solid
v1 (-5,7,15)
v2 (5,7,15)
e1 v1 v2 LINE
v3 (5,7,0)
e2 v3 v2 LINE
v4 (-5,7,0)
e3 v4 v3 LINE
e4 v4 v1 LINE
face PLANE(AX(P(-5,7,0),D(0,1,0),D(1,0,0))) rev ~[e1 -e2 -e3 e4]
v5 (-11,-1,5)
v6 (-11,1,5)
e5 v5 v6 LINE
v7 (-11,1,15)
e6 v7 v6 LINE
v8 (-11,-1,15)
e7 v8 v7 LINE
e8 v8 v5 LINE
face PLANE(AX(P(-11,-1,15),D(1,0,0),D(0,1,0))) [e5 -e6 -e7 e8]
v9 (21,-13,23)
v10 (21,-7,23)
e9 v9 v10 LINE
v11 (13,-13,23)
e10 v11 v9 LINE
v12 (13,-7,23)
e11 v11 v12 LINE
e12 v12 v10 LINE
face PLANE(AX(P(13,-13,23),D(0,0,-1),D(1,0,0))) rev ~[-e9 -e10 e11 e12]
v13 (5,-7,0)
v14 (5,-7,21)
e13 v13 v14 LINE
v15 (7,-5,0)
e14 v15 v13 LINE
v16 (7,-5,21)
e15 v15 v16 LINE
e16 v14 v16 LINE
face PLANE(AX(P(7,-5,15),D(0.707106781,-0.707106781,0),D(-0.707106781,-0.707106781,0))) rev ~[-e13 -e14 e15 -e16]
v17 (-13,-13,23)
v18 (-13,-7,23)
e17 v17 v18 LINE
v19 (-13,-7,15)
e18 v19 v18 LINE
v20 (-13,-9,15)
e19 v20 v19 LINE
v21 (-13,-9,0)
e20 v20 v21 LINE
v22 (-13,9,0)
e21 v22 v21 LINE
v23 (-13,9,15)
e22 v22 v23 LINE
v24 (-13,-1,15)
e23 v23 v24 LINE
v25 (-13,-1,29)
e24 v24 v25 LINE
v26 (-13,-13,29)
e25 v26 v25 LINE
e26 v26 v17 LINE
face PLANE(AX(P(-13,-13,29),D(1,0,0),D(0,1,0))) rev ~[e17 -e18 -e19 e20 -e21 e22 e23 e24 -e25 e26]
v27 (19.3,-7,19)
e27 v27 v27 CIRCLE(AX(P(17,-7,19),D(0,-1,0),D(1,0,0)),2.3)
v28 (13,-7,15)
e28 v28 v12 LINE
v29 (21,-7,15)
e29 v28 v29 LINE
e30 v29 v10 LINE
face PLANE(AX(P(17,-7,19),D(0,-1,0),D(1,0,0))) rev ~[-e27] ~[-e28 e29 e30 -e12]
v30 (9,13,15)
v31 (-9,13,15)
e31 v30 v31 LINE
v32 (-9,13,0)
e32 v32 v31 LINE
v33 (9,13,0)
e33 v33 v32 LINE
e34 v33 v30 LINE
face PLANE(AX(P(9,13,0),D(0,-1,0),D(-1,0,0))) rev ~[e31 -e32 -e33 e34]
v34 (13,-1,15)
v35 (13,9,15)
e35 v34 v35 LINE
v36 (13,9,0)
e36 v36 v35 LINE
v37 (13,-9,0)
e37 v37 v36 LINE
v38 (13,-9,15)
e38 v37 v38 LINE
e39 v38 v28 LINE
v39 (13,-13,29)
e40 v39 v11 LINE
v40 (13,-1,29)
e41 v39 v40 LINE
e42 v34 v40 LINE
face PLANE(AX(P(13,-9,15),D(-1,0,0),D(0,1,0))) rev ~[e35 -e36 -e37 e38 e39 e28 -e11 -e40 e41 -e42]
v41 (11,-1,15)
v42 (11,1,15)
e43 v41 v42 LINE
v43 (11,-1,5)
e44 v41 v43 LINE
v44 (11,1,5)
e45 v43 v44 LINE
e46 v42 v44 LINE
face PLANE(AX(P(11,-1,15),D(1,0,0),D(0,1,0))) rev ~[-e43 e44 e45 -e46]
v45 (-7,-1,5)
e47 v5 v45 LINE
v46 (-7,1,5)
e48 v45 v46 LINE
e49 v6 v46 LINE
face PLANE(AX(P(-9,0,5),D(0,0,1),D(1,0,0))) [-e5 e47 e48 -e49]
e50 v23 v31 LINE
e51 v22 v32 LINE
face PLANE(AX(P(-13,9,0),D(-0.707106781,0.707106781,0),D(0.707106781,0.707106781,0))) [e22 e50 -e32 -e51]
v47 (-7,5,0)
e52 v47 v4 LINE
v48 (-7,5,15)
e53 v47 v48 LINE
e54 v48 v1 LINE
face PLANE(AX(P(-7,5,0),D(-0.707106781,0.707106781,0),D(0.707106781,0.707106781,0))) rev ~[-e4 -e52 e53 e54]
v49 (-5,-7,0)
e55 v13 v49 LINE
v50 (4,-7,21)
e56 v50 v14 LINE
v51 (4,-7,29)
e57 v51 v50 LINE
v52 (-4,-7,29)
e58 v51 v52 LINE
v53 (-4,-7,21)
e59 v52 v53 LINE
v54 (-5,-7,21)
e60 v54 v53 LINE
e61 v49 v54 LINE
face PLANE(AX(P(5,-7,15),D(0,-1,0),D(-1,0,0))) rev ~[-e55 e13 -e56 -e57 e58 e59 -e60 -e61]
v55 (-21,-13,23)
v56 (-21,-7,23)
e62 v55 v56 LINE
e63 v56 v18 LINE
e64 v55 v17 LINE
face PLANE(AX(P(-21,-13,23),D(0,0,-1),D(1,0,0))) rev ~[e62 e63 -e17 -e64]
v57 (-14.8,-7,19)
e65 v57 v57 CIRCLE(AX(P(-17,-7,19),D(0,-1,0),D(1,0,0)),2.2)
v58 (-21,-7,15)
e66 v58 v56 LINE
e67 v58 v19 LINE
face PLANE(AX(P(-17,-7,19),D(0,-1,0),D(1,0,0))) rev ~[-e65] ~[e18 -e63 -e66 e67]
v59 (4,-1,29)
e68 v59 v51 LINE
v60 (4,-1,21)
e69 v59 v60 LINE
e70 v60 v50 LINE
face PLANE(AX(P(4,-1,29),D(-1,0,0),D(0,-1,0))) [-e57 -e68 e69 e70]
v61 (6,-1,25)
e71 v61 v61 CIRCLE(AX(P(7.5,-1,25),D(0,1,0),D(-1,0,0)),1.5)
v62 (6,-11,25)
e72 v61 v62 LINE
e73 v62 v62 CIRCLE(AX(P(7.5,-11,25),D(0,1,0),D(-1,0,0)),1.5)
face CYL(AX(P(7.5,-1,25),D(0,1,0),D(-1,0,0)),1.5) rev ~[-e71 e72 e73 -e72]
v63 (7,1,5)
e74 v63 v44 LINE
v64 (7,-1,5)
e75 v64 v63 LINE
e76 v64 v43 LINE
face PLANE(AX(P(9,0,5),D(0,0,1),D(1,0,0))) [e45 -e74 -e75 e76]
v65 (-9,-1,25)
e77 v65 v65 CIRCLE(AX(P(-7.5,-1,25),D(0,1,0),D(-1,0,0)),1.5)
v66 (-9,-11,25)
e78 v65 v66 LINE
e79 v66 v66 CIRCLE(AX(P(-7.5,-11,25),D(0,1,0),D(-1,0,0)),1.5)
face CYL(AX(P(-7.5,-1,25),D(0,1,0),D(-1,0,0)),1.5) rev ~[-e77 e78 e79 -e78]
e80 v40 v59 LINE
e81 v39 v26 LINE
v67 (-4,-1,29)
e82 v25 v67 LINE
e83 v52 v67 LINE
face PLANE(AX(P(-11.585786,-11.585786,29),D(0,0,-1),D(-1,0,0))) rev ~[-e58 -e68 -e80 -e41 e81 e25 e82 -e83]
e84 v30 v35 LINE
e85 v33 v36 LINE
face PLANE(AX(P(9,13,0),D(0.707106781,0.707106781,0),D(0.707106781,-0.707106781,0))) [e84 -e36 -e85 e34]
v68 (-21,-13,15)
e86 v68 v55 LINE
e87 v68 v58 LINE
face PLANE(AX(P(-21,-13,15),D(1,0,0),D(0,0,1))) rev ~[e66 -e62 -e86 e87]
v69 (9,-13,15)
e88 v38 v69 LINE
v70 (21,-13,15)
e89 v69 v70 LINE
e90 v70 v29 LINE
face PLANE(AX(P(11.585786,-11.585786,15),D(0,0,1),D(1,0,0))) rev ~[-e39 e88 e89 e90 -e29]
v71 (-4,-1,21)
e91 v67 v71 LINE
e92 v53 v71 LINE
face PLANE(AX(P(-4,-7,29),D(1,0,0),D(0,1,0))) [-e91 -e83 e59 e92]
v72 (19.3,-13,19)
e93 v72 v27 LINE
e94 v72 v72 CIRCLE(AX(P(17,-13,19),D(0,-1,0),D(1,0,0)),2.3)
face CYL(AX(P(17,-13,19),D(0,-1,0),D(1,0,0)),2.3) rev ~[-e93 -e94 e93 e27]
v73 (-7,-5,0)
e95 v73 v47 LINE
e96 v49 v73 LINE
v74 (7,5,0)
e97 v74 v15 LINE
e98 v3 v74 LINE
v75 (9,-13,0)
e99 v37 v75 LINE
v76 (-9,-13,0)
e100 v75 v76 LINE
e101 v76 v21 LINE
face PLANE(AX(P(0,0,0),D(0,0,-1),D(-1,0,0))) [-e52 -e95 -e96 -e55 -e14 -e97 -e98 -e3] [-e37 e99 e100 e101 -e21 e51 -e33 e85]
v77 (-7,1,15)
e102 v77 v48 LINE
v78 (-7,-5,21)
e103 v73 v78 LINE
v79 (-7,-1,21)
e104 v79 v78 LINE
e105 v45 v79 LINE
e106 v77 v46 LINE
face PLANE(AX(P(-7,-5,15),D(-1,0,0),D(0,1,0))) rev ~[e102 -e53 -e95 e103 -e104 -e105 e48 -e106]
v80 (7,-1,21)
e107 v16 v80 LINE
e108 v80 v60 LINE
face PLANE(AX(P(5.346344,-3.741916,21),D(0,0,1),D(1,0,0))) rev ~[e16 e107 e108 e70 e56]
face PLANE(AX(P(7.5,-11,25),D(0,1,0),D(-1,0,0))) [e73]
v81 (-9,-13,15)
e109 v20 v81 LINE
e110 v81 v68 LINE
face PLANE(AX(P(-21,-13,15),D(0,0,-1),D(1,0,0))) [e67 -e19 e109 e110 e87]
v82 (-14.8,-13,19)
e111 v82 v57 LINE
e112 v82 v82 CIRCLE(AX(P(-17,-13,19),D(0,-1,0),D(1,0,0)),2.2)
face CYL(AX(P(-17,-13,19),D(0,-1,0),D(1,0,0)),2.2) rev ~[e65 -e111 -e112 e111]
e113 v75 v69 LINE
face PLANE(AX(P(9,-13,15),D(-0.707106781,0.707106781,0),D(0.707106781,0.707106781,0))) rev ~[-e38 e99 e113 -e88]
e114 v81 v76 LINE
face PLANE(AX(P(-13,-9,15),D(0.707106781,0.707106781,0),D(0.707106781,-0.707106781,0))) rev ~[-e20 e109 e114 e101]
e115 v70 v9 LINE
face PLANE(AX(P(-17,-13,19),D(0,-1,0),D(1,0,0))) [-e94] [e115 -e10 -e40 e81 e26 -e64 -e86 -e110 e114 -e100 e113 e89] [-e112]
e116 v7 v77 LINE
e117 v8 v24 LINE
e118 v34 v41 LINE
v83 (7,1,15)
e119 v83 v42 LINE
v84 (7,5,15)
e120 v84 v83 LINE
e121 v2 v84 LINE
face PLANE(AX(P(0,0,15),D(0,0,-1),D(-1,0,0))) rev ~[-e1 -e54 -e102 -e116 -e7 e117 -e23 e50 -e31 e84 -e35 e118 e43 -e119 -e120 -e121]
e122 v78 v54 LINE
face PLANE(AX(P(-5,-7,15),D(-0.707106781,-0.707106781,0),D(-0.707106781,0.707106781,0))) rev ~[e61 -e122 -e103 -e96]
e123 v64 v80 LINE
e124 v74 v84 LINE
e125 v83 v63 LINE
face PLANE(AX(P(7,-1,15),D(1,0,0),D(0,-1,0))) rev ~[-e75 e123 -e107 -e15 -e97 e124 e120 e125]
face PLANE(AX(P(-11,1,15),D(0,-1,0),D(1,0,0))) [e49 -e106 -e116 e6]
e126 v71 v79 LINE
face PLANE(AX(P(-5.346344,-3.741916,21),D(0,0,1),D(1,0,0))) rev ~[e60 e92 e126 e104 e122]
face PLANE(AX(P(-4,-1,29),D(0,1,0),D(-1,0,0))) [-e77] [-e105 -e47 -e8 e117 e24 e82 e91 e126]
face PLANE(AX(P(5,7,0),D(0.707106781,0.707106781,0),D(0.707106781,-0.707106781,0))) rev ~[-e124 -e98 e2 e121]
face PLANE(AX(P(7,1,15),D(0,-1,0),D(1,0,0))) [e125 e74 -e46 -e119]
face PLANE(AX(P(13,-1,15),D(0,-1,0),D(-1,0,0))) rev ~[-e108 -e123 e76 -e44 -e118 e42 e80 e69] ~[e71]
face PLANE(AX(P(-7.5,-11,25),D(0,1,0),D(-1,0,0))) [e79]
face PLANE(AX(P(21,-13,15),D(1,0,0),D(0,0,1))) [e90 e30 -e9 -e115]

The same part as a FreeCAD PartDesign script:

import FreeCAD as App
import Part
import Sketcher

V = App.Vector


def add_polygon(sketch, points):
    """Adds a closed chain of lines whose ends are joined by coincident constraints."""
    first, n = sketch.GeometryCount, len(points)
    for a, b in zip(points, points[1:] + points[:1]):
        sketch.addGeometry(Part.LineSegment(App.Vector(*a, 0), App.Vector(*b, 0)), False)
    for i in range(n):
        sketch.addConstraint(Sketcher.Constraint("Coincident", first + i, 2, first + (i + 1) % n, 1))

doc = App.newDocument("Part")
body = doc.addObject("PartDesign::Body", "Body")

sketch1 = body.newObject("Sketcher::SketchObject", "Sketch")
sketch1.AttachmentSupport = (doc.getObject("XY_Plane"), [""])
sketch1.MapMode = "FlatFace"
add_polygon(sketch1, [(13, -9), (13, 9), (9, 13), (-9, 13), (-13, 9), (-13, -9), (-9, -13), (9, -13)])
add_polygon(sketch1, [(7, -5), (5, -7), (-5, -7), (-7, -5), (-7, 5), (-5, 7), (5, 7), (7, 5)])
sketch1.addConstraint(Sketcher.Constraint("Vertical", 0))
sketch1.addConstraint(Sketcher.Constraint("Horizontal", 2))
sketch1.addConstraint(Sketcher.Constraint("Vertical", 4))
sketch1.addConstraint(Sketcher.Constraint("Horizontal", 6))
sketch1.addConstraint(Sketcher.Constraint("Horizontal", 9))
sketch1.addConstraint(Sketcher.Constraint("Vertical", 11))
sketch1.addConstraint(Sketcher.Constraint("Horizontal", 13))
sketch1.addConstraint(Sketcher.Constraint("Vertical", 15))
sketch1.addConstraint(Sketcher.Constraint("Symmetric", 0, 2, 4, 2, -1, 1))
sketch1.addConstraint(Sketcher.Constraint("Symmetric", 1, 2, 5, 2, -1, 1))
sketch1.addConstraint(Sketcher.Constraint("Symmetric", 8, 2, 12, 2, -1, 1))
sketch1.addConstraint(Sketcher.Constraint("Symmetric", 10, 2, 14, 2, -1, 1))
sketch1.addConstraint(Sketcher.Constraint("Perpendicular", 1, 3))
sketch1.addConstraint(Sketcher.Constraint("Perpendicular", 5, 7))
sketch1.addConstraint(Sketcher.Constraint("Parallel", 7, 8))
sketch1.addConstraint(Sketcher.Constraint("Perpendicular", 8, 10))
sketch1.addConstraint(Sketcher.Constraint("Perpendicular", 10, 12))
sketch1.addConstraint(Sketcher.Constraint("Perpendicular", 12, 14))
sketch1.addConstraint(Sketcher.Constraint("Horizontal", 0, 2, 3, 2))
sketch1.addConstraint(Sketcher.Constraint("Horizontal", 4, 2, 7, 2))
sketch1.addConstraint(Sketcher.Constraint("Horizontal", 11, 2, 14, 2))
sketch1.addConstraint(Sketcher.Constraint("Vertical", 2, 2, 5, 2))
sketch1.addConstraint(Sketcher.Constraint("Equal", 6, 0))
sketch1.addConstraint(Sketcher.Constraint("Equal", 13, 11))
sketch1.addConstraint(Sketcher.Constraint("DistanceX", 2, 2, 2, 1, 18.0))
sketch1.addConstraint(Sketcher.Constraint("DistanceX", 9, 2, 9, 1, 10.0))
sketch1.addConstraint(Sketcher.Constraint("DistanceX", -1, 1, 0, 2, 13.0))
sketch1.addConstraint(Sketcher.Constraint("DistanceY", 8, 2, -1, 1, 7.0))
pad1 = body.newObject("PartDesign::Pad", "Pad")
pad1.Profile = sketch1
pad1.Length = 15

sketch2 = body.newObject("Sketcher::SketchObject", "Sketch001")
sketch2.AttachmentSupport = (doc.getObject("XY_Plane"), [""])
sketch2.MapMode = "FlatFace"
sketch2.AttachmentOffset = App.Placement(V(0, 0, 15), App.Rotation())
add_polygon(sketch2, [(-9, -13), (9, -13), (13, -9), (13, -1), (7, -1), (7, -5), (5, -7), (-5, -7), (-7, -5), (-7, -1), (-13, -1), (-13, -9)])
sketch2.addConstraint(Sketcher.Constraint("Horizontal", 0))
sketch2.addConstraint(Sketcher.Constraint("Vertical", 2))
sketch2.addConstraint(Sketcher.Constraint("Horizontal", 3))
sketch2.addConstraint(Sketcher.Constraint("Vertical", 4))
sketch2.addConstraint(Sketcher.Constraint("Horizontal", 6))
sketch2.addConstraint(Sketcher.Constraint("Vertical", 8))
sketch2.addConstraint(Sketcher.Constraint("Horizontal", 9))
sketch2.addConstraint(Sketcher.Constraint("Vertical", 10))
sketch2.addConstraint(Sketcher.Constraint("Symmetric", 4, 2, 7, 2, -2))
sketch2.addConstraint(Sketcher.Constraint("Symmetric", 2, 2, 9, 2, -2))
sketch2.addConstraint(Sketcher.Constraint("Parallel", 1, 5))
sketch2.addConstraint(Sketcher.Constraint("Perpendicular", 5, 7))
sketch2.addConstraint(Sketcher.Constraint("Parallel", 7, 11))
sketch2.addConstraint(Sketcher.Constraint("Horizontal", 1, 2, 10, 2))
sketch2.addConstraint(Sketcher.Constraint("Equal", 5, 7))
sketch2.addConstraint(Sketcher.Constraint("DistanceX", 0, 1, 0, 2, 18.0))
sketch2.addConstraint(Sketcher.Constraint("DistanceX", 3, 2, 3, 1, 6.0))
sketch2.addConstraint(Sketcher.Constraint("DistanceX", 6, 2, 6, 1, 10.0))
sketch2.addConstraint(Sketcher.Constraint("DistanceY", 2, 1, 2, 2, 8.0))
sketch2.addConstraint(Sketcher.Constraint("DistanceY", 4, 2, 4, 1, 4.0))
sketch2.addConstraint(Sketcher.Constraint("DistanceY", 0, 2, -1, 1, 13.0))
sketch2.addConstraint(Sketcher.Constraint("DistanceX", -1, 1, 1, 2, 13.0))
pad2 = body.newObject("PartDesign::Pad", "Pad001")
pad2.Profile = sketch2
pad2.Length = 14

sketch3 = body.newObject("Sketcher::SketchObject", "Sketch002")
sketch3.AttachmentSupport = (doc.getObject("XY_Plane"), [""])
sketch3.MapMode = "FlatFace"
sketch3.AttachmentOffset = App.Placement(V(0, 0, 15), App.Rotation())
add_polygon(sketch3, [(-11, 1), (-11, -1), (-7, -1), (-7, 1)])
add_polygon(sketch3, [(7, 1), (7, -1), (11, -1), (11, 1)])
sketch3.addConstraint(Sketcher.Constraint("Vertical", 0))
sketch3.addConstraint(Sketcher.Constraint("Horizontal", 1))
sketch3.addConstraint(Sketcher.Constraint("Vertical", 2))
sketch3.addConstraint(Sketcher.Constraint("Horizontal", 3))
sketch3.addConstraint(Sketcher.Constraint("Vertical", 4))
sketch3.addConstraint(Sketcher.Constraint("Horizontal", 5))
sketch3.addConstraint(Sketcher.Constraint("Vertical", 6))
sketch3.addConstraint(Sketcher.Constraint("Horizontal", 7))
sketch3.addConstraint(Sketcher.Constraint("Symmetric", 2, 2, 4, 2, -1, 1))
sketch3.addConstraint(Sketcher.Constraint("Symmetric", 0, 2, 6, 2, -1, 1))
sketch3.addConstraint(Sketcher.Constraint("Horizontal", 1, 2, 4, 2))
sketch3.addConstraint(Sketcher.Constraint("DistanceX", 1, 1, 1, 2, 4.0))
sketch3.addConstraint(Sketcher.Constraint("DistanceY", 0, 2, 0, 1, 2.0))
sketch3.addConstraint(Sketcher.Constraint("DistanceX", 0, 2, -1, 1, 11.0))
pocket1 = body.newObject("PartDesign::Pocket", "Pocket")
pocket1.Profile = sketch3
pocket1.Length = 10

sketch4 = body.newObject("Sketcher::SketchObject", "Sketch003")
sketch4.AttachmentSupport = (doc.getObject("XY_Plane"), [""])
sketch4.MapMode = "FlatFace"
sketch4.AttachmentOffset = App.Placement(V(0, 0, 29), App.Rotation())
add_polygon(sketch4, [(-4, -1), (-7, -1), (-7, -5), (-5, -7), (-4, -7)])
add_polygon(sketch4, [(5, -7), (7, -5), (7, -1), (4, -1), (4, -7)])
sketch4.addConstraint(Sketcher.Constraint("Horizontal", 0))
sketch4.addConstraint(Sketcher.Constraint("Vertical", 1))
sketch4.addConstraint(Sketcher.Constraint("Horizontal", 3))
sketch4.addConstraint(Sketcher.Constraint("Vertical", 4))
sketch4.addConstraint(Sketcher.Constraint("Vertical", 6))
sketch4.addConstraint(Sketcher.Constraint("Horizontal", 7))
sketch4.addConstraint(Sketcher.Constraint("Vertical", 8))
sketch4.addConstraint(Sketcher.Constraint("Horizontal", 9))
sketch4.addConstraint(Sketcher.Constraint("Symmetric", 1, 2, 5, 2, -2))
sketch4.addConstraint(Sketcher.Constraint("Symmetric", 4, 2, 7, 2, -2))
sketch4.addConstraint(Sketcher.Constraint("Symmetric", 2, 2, 9, 2, -2))
sketch4.addConstraint(Sketcher.Constraint("Perpendicular", 2, 5))
sketch4.addConstraint(Sketcher.Constraint("DistanceX", 0, 2, 0, 1, 3.0))
sketch4.addConstraint(Sketcher.Constraint("DistanceX", 3, 1, 3, 2, 1.0))
sketch4.addConstraint(Sketcher.Constraint("DistanceY", 1, 2, 1, 1, 4.0))
sketch4.addConstraint(Sketcher.Constraint("DistanceX", 0, 2, -1, 1, 7.0))
sketch4.addConstraint(Sketcher.Constraint("DistanceY", 0, 2, -1, 1, 1.0))
pad3 = body.newObject("PartDesign::Pad", "Pad002")
pad3.Profile = sketch4
pad3.Length = 8
pad3.Reversed = True

sketch5 = body.newObject("Sketcher::SketchObject", "Sketch004")
sketch5.AttachmentSupport = (doc.getObject("XZ_Plane"), [""])
sketch5.MapMode = "FlatFace"
sketch5.AttachmentOffset = App.Placement(V(0, 0, 1), App.Rotation())
sketch5.addGeometry(Part.Circle(V(-7.5, 25, 0), V(0, 0, 1), 1.5), False)
sketch5.addGeometry(Part.Circle(V(7.5, 25, 0), V(0, 0, 1), 1.5), False)
sketch5.addConstraint(Sketcher.Constraint("Equal", 0, 1))
sketch5.addConstraint(Sketcher.Constraint("Symmetric", 0, 3, 1, 3, -2))
sketch5.addConstraint(Sketcher.Constraint("Diameter", 0, 3.0))
sketch5.addConstraint(Sketcher.Constraint("DistanceY", -1, 1, 0, 3, 25.0))
sketch5.addConstraint(Sketcher.Constraint("DistanceX", 0, 3, 1, 3, 15.0))
pocket2 = body.newObject("PartDesign::Pocket", "Pocket001")
pocket2.Profile = sketch5
pocket2.Length = 10
pocket2.Reversed = True

sketch6 = body.newObject("Sketcher::SketchObject", "Sketch005")
sketch6.AttachmentSupport = (doc.getObject("XY_Plane"), [""])
sketch6.MapMode = "FlatFace"
sketch6.AttachmentOffset = App.Placement(V(0, 0, 29), App.Rotation())
add_polygon(sketch6, [(-9, -13), (-13, -9), (-13, -13)])
add_polygon(sketch6, [(9, -13), (13, -13), (13, -9)])
sketch6.addConstraint(Sketcher.Constraint("Vertical", 1))
sketch6.addConstraint(Sketcher.Constraint("Horizontal", 2))
sketch6.addConstraint(Sketcher.Constraint("Horizontal", 3))
sketch6.addConstraint(Sketcher.Constraint("Vertical", 4))
sketch6.addConstraint(Sketcher.Constraint("Symmetric", 1, 2, 3, 2, -2))
sketch6.addConstraint(Sketcher.Constraint("Perpendicular", 0, 5))
sketch6.addConstraint(Sketcher.Constraint("Horizontal", 0, 2, 4, 2))
sketch6.addConstraint(Sketcher.Constraint("Equal", 2, 3))
sketch6.addConstraint(Sketcher.Constraint("DistanceX", 2, 1, 2, 2, 4.0))
sketch6.addConstraint(Sketcher.Constraint("DistanceX", 0, 2, -1, 1, 13.0))
sketch6.addConstraint(Sketcher.Constraint("DistanceY", 0, 2, -1, 1, 9.0))
pad4 = body.newObject("PartDesign::Pad", "Pad003")
pad4.Profile = sketch6
pad4.Length = 14
pad4.Reversed = True

sketch7 = body.newObject("Sketcher::SketchObject", "Sketch006")
sketch7.AttachmentSupport = (doc.getObject("XZ_Plane"), [""])
sketch7.MapMode = "FlatFace"
sketch7.AttachmentOffset = App.Placement(V(0, 0, 13), App.Rotation())
add_polygon(sketch7, [(-21, 23), (-21, 15), (-13, 15), (-13, 23)])
sketch7.addGeometry(Part.Circle(V(-17, 19, 0), V(0, 0, 1), 2.2), False)
add_polygon(sketch7, [(13, 23), (13, 15), (21, 15), (21, 23)])
sketch7.addGeometry(Part.Circle(V(17, 19, 0), V(0, 0, 1), 2.3), False)
sketch7.addConstraint(Sketcher.Constraint("Vertical", 0))
sketch7.addConstraint(Sketcher.Constraint("Horizontal", 1))
sketch7.addConstraint(Sketcher.Constraint("Vertical", 2))
sketch7.addConstraint(Sketcher.Constraint("Horizontal", 3))
sketch7.addConstraint(Sketcher.Constraint("Vertical", 5))
sketch7.addConstraint(Sketcher.Constraint("Horizontal", 6))
sketch7.addConstraint(Sketcher.Constraint("Vertical", 7))
sketch7.addConstraint(Sketcher.Constraint("Horizontal", 8))
sketch7.addConstraint(Sketcher.Constraint("Symmetric", 4, 3, 9, 3, -2))
sketch7.addConstraint(Sketcher.Constraint("Symmetric", 1, 2, 5, 2, -2))
sketch7.addConstraint(Sketcher.Constraint("Symmetric", 3, 2, 7, 2, -2))
sketch7.addConstraint(Sketcher.Constraint("Equal", 8, 0))
sketch7.addConstraint(Sketcher.Constraint("Diameter", 4, 4.4))
sketch7.addConstraint(Sketcher.Constraint("Diameter", 9, 4.6))
sketch7.addConstraint(Sketcher.Constraint("DistanceX", 1, 1, 1, 2, 8.0))
sketch7.addConstraint(Sketcher.Constraint("DistanceX", 4, 3, -1, 1, 17.0))
sketch7.addConstraint(Sketcher.Constraint("DistanceY", -1, 1, 4, 3, 19.0))
sketch7.addConstraint(Sketcher.Constraint("DistanceX", 0, 2, -1, 1, 21.0))
sketch7.addConstraint(Sketcher.Constraint("DistanceY", -1, 1, 0, 2, 15.0))
pad5 = body.newObject("PartDesign::Pad", "Pad004")
pad5.Profile = sketch7
pad5.Length = 6
pad5.Reversed = True

doc.recompute()
